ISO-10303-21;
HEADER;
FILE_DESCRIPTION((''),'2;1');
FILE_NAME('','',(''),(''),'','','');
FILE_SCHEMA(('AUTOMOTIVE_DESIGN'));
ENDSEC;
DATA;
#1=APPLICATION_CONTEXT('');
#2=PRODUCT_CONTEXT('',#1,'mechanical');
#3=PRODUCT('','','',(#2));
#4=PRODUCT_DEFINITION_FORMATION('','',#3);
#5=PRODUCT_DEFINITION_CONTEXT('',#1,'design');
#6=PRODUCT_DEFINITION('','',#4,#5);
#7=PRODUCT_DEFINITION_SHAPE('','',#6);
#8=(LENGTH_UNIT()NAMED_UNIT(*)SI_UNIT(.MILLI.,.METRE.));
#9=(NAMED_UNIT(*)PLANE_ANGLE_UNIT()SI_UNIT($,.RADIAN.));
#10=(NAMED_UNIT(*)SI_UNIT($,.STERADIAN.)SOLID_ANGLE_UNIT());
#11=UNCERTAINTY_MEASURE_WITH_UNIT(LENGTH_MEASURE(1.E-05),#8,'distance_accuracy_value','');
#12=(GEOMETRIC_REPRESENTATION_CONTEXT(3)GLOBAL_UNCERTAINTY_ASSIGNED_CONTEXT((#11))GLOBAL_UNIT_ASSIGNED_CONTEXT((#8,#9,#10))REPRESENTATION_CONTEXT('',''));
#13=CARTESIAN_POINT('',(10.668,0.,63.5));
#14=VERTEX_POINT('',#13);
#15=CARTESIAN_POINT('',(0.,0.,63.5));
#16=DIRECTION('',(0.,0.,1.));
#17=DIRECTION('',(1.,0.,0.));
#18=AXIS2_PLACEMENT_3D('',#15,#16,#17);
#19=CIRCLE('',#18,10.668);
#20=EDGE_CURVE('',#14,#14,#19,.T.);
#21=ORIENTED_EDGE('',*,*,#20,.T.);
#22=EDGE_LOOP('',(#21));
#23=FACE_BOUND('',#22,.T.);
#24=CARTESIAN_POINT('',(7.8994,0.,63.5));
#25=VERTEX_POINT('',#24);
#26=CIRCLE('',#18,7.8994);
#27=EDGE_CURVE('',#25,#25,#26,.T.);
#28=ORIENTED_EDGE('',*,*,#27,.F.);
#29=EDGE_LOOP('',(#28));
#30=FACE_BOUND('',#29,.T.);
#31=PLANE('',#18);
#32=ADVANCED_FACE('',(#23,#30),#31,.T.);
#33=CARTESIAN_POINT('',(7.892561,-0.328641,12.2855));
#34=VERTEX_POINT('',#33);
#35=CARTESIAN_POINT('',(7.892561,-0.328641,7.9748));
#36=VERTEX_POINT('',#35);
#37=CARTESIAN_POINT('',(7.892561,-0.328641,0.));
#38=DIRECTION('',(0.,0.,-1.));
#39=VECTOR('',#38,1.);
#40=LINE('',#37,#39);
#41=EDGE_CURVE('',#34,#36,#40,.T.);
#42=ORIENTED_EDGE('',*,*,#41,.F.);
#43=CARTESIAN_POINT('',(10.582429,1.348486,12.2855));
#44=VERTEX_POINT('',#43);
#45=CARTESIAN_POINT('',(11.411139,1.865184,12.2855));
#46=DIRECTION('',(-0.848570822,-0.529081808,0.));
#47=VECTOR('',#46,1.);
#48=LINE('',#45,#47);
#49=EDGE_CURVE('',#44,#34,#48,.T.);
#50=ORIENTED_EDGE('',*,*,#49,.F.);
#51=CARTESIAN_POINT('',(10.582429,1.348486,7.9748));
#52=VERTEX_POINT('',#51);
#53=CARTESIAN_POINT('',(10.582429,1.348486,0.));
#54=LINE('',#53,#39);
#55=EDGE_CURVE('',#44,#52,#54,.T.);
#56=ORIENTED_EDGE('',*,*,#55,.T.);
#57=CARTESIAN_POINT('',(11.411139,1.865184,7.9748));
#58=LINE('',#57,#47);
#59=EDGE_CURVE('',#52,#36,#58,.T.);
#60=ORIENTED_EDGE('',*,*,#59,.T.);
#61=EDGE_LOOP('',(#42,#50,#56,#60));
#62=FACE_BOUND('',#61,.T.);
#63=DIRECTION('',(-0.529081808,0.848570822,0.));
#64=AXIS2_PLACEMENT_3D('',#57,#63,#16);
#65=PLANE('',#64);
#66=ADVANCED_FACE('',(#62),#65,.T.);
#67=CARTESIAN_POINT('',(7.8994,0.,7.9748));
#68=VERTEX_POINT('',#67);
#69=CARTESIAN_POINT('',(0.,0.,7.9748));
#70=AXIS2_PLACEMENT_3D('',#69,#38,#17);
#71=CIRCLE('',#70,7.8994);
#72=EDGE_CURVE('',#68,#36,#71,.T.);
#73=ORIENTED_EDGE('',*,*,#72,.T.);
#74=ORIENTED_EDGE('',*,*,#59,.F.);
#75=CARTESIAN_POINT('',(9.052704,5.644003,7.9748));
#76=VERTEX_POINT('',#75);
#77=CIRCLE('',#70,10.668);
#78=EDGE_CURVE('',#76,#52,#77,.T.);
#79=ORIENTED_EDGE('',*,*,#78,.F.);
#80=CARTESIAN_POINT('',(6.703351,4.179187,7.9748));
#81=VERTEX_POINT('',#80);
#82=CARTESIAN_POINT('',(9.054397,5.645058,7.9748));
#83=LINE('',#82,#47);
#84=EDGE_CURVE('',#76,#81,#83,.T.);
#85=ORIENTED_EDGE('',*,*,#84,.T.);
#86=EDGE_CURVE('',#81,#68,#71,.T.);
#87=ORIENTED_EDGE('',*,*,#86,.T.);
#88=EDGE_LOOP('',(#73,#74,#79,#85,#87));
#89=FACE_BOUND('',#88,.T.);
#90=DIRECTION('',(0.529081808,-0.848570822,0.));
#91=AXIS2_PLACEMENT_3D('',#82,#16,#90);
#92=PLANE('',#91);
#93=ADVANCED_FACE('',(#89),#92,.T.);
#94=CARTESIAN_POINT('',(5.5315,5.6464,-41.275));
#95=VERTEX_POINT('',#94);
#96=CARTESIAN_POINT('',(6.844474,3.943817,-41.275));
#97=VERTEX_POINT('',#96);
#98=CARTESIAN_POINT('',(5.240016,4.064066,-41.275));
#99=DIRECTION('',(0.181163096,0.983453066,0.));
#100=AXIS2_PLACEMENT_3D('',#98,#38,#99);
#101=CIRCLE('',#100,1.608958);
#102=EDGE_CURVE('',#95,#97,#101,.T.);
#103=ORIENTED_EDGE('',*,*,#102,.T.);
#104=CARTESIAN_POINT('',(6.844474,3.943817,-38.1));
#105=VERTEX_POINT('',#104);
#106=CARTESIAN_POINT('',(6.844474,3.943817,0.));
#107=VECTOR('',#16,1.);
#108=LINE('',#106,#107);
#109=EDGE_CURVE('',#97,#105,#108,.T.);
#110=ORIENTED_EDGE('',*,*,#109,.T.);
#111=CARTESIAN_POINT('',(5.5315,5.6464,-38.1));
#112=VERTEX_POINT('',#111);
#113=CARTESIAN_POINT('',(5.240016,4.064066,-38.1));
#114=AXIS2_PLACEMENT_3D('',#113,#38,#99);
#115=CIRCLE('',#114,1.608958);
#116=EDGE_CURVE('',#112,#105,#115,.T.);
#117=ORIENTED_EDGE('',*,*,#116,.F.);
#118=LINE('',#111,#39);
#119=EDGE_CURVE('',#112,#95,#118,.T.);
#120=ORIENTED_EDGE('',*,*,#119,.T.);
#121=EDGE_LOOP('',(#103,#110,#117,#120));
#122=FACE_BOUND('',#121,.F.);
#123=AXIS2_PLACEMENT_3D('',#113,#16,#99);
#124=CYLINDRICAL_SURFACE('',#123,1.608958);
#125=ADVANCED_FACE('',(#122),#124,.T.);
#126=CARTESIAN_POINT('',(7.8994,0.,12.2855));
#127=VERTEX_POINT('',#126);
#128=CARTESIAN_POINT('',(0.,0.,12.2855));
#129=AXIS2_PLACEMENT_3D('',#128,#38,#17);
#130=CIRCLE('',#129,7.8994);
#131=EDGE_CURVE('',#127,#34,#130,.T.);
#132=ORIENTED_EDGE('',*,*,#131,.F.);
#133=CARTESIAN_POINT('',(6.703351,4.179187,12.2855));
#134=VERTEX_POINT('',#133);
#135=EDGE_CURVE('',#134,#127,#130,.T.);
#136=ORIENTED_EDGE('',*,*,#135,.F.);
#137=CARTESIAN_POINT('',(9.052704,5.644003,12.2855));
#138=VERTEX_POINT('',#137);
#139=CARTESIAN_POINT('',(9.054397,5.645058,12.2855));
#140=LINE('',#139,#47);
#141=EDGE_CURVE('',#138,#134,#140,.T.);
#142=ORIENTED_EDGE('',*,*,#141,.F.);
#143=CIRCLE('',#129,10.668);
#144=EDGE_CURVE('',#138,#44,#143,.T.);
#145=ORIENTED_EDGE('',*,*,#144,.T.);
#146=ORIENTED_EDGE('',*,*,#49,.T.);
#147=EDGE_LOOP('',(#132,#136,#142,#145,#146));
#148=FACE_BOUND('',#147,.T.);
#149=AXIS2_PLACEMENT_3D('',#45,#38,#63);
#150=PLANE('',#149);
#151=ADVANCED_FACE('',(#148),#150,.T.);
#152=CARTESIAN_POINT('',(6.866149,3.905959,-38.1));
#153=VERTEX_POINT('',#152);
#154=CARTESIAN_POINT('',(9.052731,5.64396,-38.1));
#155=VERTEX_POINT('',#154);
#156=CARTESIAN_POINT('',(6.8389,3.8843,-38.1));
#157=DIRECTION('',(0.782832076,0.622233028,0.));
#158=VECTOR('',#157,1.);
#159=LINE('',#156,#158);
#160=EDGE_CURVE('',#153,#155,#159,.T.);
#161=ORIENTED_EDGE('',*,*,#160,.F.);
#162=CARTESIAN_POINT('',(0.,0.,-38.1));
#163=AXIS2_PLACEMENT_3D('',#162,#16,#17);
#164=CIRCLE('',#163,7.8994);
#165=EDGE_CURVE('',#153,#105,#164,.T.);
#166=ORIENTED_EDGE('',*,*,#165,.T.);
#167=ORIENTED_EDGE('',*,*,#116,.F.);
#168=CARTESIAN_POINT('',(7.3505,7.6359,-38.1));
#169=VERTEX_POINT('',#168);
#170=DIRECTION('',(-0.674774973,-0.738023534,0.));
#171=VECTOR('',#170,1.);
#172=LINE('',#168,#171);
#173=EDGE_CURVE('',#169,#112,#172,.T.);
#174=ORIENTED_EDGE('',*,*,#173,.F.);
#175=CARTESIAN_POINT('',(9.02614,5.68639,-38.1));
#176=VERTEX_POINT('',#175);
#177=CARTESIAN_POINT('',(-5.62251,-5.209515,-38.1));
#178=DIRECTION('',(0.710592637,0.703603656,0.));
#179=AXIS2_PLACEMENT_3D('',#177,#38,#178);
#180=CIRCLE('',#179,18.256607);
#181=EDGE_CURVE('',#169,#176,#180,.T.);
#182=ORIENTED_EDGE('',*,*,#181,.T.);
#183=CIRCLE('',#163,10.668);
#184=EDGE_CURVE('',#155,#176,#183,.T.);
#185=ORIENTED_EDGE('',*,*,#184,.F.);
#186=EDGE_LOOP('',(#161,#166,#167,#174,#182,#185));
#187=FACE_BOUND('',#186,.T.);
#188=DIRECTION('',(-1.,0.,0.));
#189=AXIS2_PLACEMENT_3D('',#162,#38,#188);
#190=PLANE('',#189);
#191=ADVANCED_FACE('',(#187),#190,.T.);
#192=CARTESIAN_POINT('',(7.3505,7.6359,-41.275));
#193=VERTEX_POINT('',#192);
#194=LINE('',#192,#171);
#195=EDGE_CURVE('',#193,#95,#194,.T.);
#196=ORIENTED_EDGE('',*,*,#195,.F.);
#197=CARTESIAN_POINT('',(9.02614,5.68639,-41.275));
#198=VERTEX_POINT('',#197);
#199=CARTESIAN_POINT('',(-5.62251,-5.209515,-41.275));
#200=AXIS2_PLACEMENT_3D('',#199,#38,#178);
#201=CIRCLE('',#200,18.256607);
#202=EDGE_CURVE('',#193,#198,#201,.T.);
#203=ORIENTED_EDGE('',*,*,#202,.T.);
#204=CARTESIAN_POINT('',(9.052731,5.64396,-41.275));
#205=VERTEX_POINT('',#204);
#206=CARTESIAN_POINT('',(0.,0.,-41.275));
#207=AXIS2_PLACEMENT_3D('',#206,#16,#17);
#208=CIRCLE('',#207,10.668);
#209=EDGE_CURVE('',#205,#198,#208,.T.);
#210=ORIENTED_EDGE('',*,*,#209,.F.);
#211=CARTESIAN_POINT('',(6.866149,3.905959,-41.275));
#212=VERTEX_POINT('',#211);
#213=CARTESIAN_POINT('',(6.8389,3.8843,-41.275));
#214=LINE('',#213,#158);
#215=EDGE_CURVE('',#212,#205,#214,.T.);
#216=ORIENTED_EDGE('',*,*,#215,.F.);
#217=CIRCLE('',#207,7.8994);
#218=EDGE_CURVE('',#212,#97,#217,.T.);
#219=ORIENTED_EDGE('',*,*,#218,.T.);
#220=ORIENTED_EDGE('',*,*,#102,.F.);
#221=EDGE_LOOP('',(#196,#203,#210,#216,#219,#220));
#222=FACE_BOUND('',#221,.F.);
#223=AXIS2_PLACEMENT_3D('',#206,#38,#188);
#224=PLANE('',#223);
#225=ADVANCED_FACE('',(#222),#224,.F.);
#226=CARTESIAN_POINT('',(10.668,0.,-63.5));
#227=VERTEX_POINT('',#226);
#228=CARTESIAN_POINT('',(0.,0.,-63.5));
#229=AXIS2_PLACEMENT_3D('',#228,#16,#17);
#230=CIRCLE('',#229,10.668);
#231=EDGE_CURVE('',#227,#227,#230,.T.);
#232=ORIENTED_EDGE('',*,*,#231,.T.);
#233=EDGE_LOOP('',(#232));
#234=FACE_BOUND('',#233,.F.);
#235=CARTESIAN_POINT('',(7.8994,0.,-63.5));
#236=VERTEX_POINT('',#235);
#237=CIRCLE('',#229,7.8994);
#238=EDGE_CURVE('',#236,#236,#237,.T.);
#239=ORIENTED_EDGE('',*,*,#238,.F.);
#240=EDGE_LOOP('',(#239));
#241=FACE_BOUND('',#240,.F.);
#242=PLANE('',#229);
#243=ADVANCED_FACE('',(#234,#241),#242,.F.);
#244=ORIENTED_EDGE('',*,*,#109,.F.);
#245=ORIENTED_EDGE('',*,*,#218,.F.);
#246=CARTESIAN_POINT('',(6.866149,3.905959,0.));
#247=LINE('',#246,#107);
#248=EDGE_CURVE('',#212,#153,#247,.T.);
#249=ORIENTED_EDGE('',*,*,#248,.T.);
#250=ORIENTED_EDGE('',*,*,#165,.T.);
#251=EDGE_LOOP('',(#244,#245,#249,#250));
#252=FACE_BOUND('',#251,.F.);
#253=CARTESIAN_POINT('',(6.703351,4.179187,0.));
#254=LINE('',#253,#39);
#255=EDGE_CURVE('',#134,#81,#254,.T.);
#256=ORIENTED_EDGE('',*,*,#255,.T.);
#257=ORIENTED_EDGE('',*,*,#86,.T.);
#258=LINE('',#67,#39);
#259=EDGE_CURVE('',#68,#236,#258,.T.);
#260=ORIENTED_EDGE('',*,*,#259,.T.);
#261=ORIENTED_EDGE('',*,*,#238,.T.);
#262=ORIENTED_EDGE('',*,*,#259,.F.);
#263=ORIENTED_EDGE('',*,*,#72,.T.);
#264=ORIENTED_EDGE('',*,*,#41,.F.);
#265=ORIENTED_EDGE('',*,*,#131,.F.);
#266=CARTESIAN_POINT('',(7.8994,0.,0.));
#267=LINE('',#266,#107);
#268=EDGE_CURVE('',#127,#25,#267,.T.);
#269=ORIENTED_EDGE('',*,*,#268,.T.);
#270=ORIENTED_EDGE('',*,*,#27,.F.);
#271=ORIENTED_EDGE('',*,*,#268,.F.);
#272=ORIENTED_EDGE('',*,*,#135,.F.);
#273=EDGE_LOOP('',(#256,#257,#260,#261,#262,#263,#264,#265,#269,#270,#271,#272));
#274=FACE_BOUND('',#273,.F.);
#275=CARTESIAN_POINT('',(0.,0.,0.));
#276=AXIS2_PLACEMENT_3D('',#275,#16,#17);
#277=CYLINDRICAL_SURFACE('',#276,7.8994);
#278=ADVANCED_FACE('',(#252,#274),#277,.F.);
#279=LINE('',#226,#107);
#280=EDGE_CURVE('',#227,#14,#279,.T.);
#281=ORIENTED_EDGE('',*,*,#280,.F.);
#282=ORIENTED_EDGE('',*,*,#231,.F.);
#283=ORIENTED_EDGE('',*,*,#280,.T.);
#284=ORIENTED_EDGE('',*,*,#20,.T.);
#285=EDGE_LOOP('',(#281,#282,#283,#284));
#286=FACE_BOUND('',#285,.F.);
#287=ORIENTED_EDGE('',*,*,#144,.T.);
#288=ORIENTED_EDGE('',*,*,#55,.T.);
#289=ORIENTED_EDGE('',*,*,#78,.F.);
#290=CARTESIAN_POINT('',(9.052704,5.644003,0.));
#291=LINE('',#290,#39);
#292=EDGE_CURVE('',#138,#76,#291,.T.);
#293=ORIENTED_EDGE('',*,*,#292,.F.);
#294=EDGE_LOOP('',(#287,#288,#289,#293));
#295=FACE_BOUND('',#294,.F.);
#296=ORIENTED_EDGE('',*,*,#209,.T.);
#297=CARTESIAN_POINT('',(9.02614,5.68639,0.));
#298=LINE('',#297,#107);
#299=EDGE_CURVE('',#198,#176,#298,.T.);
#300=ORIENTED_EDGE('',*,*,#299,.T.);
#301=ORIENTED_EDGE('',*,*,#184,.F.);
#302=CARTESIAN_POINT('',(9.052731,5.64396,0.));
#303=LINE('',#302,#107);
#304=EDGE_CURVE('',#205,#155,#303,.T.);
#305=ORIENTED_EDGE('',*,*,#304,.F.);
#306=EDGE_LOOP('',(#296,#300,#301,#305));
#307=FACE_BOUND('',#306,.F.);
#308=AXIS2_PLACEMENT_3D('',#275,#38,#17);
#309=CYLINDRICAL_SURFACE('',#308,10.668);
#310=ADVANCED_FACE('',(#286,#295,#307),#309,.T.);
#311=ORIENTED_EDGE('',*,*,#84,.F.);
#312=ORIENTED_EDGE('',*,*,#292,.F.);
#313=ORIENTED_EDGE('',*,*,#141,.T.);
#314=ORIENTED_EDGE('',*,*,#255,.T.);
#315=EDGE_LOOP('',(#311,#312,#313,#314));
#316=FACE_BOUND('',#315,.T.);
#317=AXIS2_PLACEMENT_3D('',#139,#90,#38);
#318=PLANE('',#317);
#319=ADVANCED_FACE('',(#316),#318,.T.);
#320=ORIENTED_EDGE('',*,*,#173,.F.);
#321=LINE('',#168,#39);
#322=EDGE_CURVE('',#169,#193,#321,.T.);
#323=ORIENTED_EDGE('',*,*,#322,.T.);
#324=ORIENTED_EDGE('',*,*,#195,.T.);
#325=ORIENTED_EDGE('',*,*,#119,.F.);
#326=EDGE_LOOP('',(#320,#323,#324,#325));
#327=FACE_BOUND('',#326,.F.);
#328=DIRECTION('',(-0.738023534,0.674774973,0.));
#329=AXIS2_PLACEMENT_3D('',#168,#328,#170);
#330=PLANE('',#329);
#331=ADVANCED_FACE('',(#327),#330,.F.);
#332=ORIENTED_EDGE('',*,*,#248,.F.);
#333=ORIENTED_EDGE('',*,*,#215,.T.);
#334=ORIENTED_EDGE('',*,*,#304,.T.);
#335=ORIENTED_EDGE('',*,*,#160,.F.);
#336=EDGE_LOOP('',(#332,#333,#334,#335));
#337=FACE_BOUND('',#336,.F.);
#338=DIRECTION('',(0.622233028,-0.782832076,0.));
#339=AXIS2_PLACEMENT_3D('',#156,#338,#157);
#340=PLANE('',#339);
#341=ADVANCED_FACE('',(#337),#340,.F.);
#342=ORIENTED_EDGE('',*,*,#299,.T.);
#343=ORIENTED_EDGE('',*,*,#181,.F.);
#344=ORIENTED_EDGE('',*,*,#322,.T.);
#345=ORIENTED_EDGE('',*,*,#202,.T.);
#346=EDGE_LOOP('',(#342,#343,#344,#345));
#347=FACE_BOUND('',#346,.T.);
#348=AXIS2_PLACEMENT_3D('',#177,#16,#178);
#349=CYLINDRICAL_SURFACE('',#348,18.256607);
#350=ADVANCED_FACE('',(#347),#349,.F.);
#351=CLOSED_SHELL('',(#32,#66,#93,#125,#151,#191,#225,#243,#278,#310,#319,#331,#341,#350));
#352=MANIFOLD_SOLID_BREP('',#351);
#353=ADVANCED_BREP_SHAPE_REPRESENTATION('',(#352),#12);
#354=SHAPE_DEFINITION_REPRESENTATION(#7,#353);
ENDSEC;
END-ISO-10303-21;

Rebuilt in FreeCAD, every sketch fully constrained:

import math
import FreeCAD as App
import Part
import Sketcher
from FreeCAD import Vector
Q = App.Units.Quantity

doc = App.newDocument("Part")
body = doc.addObject("PartDesign::Body", "Body")

sketch1 = body.newObject("Sketcher::SketchObject", "Sketch")
sketch1.AttachmentSupport = (doc.getObject("XY_Plane"), [""])
sketch1.MapMode = "FlatFace"
sketch1.addGeometry(Part.Circle(Vector(0, 0, 0), Vector(0, 0, 1), 11), False)
sketch1.addGeometry(Part.Circle(Vector(0, 0, 0), Vector(0, 0, 1), 8), False)
sketch1.addConstraint(Sketcher.Constraint("Coincident", 0, 3, -1, 1))
sketch1.addConstraint(Sketcher.Constraint("Coincident", 1, 3, -1, 1))
sketch1.addConstraint(Sketcher.Constraint("Diameter", 0, Q("0.84 in")))
sketch1.addConstraint(Sketcher.Constraint("Diameter", 1, Q("0.622 in")))
pad1 = body.newObject("PartDesign::Pad", "Pad")
pad1.Profile = sketch1
pad1.Length = Q("5 in")
pad1.Midplane = True

sketch2 = body.newObject("Sketcher::SketchObject", "Sketch001")
sketch2.AttachmentSupport = (doc.getObject("XY_Plane"), [""])
sketch2.MapMode = "FlatFace"
sketch2.AttachmentOffset = App.Placement(Vector(0, 0, -1.5 * 25.4), App.Rotation())
sketch2.addGeometry(Part.LineSegment(Vector(5.5, 5.6, 0), Vector(7.4, 7.6, 0)), False)
sketch2.addGeometry(Part.ArcOfCircle(Part.Circle(Vector(-5.6, -5.2, 0), Vector(0, 0, 1), 18.3), math.radians(36.49), math.radians(44.72)), False)
sketch2.addGeometry(Part.LineSegment(Vector(9.1, 5.6, 0), Vector(6.8, 3.9, 0)), False)
sketch2.addGeometry(Part.ArcOfCircle(Part.Circle(Vector(5.2, 4.1, 0), Vector(0, 0, 1), 1.6), math.radians(-6), math.radians(80)), False)
sketch2.addConstraint(Sketcher.Constraint("Coincident", 0, 2, 1, 2))
sketch2.addConstraint(Sketcher.Constraint("Coincident", 1, 1, 2, 1))
sketch2.addConstraint(Sketcher.Constraint("Coincident", 2, 2, 3, 1))
sketch2.addConstraint(Sketcher.Constraint("Coincident", 3, 2, 0, 1))
sketch2.addConstraint(Sketcher.Constraint("Horizontal", 1, 1, 3, 2))
sketch2.addConstraint(Sketcher.Constraint("DistanceY", -1, 1, 3, 3, Q("0.16 in")))
sketch2.addConstraint(Sketcher.Constraint("Angle", 2, Q("-141.5206 deg")))
sketch2.addConstraint(Sketcher.Constraint("Radius", 1, 18.2566))
sketch2.addConstraint(Sketcher.Constraint("Radius", 3, 1.6088))
sketch2.addConstraint(Sketcher.Constraint("DistanceY", 3, 3, 0, 2, Q("0.1406181 in")))
sketch2.addConstraint(Sketcher.Constraint("Distance", 2, Q("0.1115 in")))
sketch2.addConstraint(Sketcher.Constraint("DistanceY", 1, 3, -1, 1, Q("0.2051 in")))
sketch2.addConstraint(Sketcher.Constraint("DistanceX", -1, 1, 3, 3, Q("0.2063 in")))
sketch2.addConstraint(Sketcher.Constraint("DistanceX", -1, 1, 0, 2, Q("0.2894 in")))
pocket1 = body.newObject("PartDesign::Pocket", "Pocket")
pocket1.Profile = sketch2
pocket1.Length = Q("0.125 in")

sketch3 = body.newObject("Sketcher::SketchObject", "Sketch002")
sketch3.Placement = App.Placement(Vector(9.0527, 5.644, 0), App.Rotation(Vector(-0.529081808, 0.848570822, 0), Vector(0, 0, 1), Vector(0.848570822, 0.529081808, 0), "ZXY"))
sketch3.addGeometry(Part.LineSegment(Vector(0, 8, 0), Vector(0, 12.3, 0)), False)
sketch3.addGeometry(Part.LineSegment(Vector(0, 12.3, 0), Vector(-4.5, 12.3, 0)), False)
sketch3.addGeometry(Part.LineSegment(Vector(-4.5, 12.3, 0), Vector(-4.5, 8, 0)), False)
sketch3.addGeometry(Part.LineSegment(Vector(-4.5, 8, 0), Vector(0, 8, 0)), False)
sketch3.addConstraint(Sketcher.Constraint("Coincident", 0, 2, 1, 1))
sketch3.addConstraint(Sketcher.Constraint("Coincident", 1, 2, 2, 1))
sketch3.addConstraint(Sketcher.Constraint("Coincident", 2, 2, 3, 1))
sketch3.addConstraint(Sketcher.Constraint("Coincident", 3, 2, 0, 1))
sketch3.addConstraint(Sketcher.Constraint("Vertical", 0))
sketch3.addConstraint(Sketcher.Constraint("Horizontal", 1))
sketch3.addConstraint(Sketcher.Constraint("Vertical", 2))
sketch3.addConstraint(Sketcher.Constraint("Horizontal", 3))
sketch3.addConstraint(Sketcher.Constraint("PointOnObject", 0, 2, -2))
sketch3.addConstraint(Sketcher.Constraint("DistanceX", 1, 2, 1, 1, 4.4544))
sketch3.addConstraint(Sketcher.Constraint("DistanceY", 0, 1, 0, 2, 4.3107))
sketch3.addConstraint(Sketcher.Constraint("DistanceY", -1, 1, 0, 2, 12.2855))
pocket2 = body.newObject("PartDesign::Pocket", "Pocket001")
pocket2.Profile = sketch3
pocket2.Length = Q("0.25 in")

doc.recompute()
